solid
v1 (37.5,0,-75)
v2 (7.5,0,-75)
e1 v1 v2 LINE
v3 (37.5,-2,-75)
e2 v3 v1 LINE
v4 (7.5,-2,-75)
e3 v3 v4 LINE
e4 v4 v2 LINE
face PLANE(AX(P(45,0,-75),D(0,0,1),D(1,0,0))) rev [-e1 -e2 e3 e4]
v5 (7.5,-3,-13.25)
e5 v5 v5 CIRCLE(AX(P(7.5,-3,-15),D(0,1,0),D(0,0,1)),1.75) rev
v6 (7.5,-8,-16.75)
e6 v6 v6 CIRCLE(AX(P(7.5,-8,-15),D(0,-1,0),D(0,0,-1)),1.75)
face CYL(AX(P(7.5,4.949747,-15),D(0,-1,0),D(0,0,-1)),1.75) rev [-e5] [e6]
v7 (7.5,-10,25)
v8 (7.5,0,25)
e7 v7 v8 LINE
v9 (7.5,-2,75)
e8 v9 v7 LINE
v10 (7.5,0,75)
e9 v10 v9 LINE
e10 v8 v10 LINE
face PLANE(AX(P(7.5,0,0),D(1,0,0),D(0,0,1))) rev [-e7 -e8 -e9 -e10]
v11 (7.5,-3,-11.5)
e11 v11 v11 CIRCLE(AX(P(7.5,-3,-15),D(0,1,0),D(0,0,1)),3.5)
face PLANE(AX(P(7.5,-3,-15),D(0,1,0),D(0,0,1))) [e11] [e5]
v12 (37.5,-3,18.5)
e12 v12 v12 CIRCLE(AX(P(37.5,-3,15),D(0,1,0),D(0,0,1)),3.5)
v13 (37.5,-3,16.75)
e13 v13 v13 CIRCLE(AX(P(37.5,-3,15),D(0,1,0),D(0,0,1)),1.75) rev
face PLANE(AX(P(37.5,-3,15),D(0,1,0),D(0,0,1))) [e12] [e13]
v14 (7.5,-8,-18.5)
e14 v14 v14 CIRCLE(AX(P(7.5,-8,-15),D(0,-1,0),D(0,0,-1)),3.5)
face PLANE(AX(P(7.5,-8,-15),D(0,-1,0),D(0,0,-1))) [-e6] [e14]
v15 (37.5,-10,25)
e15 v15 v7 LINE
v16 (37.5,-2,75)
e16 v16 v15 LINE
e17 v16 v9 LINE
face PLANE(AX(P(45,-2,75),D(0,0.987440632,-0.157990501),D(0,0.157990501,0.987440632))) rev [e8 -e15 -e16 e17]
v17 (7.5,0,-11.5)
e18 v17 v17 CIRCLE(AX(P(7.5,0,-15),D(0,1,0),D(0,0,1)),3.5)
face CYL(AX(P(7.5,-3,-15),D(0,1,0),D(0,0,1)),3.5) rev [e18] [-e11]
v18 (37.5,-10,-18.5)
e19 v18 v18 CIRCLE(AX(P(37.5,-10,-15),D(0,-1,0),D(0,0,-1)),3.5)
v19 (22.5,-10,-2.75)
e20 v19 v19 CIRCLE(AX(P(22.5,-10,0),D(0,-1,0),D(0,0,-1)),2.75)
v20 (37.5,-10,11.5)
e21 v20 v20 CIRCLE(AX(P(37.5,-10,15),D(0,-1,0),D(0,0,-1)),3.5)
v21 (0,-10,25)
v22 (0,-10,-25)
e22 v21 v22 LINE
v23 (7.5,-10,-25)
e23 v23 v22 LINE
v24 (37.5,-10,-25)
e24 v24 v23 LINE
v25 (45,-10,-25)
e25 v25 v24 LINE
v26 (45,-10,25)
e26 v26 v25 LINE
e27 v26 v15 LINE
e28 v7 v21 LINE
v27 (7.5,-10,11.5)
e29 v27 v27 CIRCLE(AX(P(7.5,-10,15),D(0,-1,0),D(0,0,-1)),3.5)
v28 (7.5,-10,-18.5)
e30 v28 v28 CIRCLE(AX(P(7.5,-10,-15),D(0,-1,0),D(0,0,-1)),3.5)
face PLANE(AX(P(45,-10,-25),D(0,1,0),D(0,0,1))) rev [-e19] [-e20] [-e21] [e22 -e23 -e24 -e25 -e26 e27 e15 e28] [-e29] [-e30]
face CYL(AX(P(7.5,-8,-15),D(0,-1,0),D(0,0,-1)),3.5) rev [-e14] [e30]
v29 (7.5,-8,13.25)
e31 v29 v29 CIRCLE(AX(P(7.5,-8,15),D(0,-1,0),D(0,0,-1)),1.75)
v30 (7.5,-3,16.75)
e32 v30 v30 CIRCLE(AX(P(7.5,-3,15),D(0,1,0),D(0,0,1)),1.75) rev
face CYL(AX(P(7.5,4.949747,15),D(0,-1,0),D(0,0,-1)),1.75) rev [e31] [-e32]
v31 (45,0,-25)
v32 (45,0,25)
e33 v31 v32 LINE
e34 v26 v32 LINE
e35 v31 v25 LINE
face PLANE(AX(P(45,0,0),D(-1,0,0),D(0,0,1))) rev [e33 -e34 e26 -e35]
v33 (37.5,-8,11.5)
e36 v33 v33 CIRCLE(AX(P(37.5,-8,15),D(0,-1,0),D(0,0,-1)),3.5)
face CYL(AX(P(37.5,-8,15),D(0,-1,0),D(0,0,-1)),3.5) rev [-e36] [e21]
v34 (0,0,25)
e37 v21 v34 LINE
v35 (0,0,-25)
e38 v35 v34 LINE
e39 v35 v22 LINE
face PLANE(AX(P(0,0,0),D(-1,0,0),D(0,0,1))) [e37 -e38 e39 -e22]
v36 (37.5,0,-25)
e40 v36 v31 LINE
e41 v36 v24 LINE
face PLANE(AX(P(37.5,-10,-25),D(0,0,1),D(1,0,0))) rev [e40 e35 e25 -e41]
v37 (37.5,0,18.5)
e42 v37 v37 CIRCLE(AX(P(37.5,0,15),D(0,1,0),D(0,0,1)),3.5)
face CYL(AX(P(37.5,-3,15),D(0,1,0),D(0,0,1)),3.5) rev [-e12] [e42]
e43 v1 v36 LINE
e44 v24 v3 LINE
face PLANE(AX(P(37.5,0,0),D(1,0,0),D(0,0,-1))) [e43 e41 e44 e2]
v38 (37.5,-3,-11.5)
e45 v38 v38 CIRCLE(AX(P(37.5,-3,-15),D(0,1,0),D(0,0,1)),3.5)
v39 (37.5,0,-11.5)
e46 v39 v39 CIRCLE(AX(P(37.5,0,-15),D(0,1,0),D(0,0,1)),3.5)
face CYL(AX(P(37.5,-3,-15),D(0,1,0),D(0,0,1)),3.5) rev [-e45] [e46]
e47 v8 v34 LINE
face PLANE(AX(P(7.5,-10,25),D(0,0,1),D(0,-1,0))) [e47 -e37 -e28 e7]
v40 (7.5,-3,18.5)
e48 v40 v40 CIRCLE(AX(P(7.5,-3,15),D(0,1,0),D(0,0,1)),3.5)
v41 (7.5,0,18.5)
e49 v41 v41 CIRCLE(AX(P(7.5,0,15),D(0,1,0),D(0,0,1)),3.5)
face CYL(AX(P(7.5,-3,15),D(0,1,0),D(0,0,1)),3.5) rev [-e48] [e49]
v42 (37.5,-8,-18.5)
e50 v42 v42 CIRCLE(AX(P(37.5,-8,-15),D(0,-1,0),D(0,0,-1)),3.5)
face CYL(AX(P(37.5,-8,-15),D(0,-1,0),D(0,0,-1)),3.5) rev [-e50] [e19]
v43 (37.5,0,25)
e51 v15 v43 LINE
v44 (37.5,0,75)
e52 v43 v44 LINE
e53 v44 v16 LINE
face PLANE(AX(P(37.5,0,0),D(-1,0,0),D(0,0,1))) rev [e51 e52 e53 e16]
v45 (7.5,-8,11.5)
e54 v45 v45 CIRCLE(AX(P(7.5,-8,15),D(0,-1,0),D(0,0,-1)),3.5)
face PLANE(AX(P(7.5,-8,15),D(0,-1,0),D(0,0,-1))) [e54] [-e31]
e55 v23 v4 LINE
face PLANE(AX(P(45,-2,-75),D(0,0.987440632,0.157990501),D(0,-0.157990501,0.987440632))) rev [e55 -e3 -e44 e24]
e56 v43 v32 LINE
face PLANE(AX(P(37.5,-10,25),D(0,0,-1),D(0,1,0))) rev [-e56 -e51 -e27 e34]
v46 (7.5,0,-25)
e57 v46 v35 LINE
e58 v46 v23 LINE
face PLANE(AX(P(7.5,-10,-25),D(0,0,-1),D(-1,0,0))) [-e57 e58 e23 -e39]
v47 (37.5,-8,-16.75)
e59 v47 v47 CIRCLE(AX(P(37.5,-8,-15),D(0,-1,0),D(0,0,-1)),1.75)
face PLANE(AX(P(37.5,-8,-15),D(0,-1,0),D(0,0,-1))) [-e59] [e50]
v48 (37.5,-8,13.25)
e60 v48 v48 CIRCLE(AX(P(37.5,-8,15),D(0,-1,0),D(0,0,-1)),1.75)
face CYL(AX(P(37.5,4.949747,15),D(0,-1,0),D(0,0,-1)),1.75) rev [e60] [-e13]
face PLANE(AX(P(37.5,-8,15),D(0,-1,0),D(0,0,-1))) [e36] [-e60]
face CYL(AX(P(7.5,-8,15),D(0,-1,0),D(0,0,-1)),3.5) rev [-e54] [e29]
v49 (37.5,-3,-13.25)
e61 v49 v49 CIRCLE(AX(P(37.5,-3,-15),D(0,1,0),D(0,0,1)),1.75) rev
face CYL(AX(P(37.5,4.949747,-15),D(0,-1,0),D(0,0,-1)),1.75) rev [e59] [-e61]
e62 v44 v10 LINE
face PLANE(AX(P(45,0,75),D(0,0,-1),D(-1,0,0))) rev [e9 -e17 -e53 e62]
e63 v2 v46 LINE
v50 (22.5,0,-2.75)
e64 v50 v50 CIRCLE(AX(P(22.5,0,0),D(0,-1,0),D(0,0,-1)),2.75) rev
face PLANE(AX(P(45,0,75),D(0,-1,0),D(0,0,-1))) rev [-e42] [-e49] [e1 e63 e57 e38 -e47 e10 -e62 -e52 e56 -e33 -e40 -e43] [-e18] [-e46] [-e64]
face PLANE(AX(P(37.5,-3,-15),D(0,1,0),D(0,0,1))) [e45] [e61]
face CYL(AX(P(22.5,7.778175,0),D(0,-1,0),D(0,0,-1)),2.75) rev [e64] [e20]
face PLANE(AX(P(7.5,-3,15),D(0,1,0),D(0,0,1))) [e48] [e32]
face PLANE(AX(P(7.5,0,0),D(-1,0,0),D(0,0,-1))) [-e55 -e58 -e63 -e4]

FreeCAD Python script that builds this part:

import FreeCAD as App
import Part
import Sketcher
from FreeCAD import Vector

doc = App.newDocument("Part")
body = doc.addObject("PartDesign::Body", "Body")

# Sketch on YZ plane
sketch1 = body.newObject("Sketcher::SketchObject", "Sketch")
sketch1.AttachmentSupport = (doc.getObject("YZ_Plane"), [""])
sketch1.MapMode = "FlatFace"
sketch1.addGeometry([
    Part.LineSegment(Vector(0, -75, 0), Vector(0, 75, 0)),  # 0
    Part.LineSegment(Vector(0, 75, 0), Vector(-2, 75, 0)),  # 1
    Part.LineSegment(Vector(-2, 75, 0), Vector(-10, 25, 0)),  # 2
    Part.LineSegment(Vector(-10, 25, 0), Vector(-10, -25, 0)),  # 3
    Part.LineSegment(Vector(-10, -25, 0), Vector(-2, -75, 0)),  # 4
    Part.LineSegment(Vector(-2, -75, 0), Vector(0, -75, 0)),  # 5
], False)
sketch1.addConstraint([
    Sketcher.Constraint("Coincident", 0, 2, 1, 1),
    Sketcher.Constraint("Coincident", 1, 2, 2, 1),
    Sketcher.Constraint("Coincident", 2, 2, 3, 1),
    Sketcher.Constraint("Coincident", 3, 2, 4, 1),
    Sketcher.Constraint("Coincident", 4, 2, 5, 1),
    Sketcher.Constraint("Coincident", 5, 2, 0, 1),
    Sketcher.Constraint("Vertical", 0),
    Sketcher.Constraint("Horizontal", 1),
    Sketcher.Constraint("Vertical", 3),
    Sketcher.Constraint("Horizontal", 5),
    Sketcher.Constraint("Symmetric", 0, 2, 5, 2, -1, 1),
    Sketcher.Constraint("Vertical", 1, 2, 4, 2),
    Sketcher.Constraint("Equal", 2, 4),
    Sketcher.Constraint("DistanceX", 1, 2, 1, 1, 2.0),
    Sketcher.Constraint("DistanceY", 0, 1, 0, 2, 150.0),
    Sketcher.Constraint("DistanceY", 3, 2, 3, 1, 50.0),
    Sketcher.Constraint("DistanceX", 2, 2, -1, 1, 10.0),
])
pad1 = body.newObject("PartDesign::Pad", "Pad")
pad1.Profile = sketch1
pad1.Length = 45

# Sketch on XZ plane
sketch2 = body.newObject("Sketcher::SketchObject", "Sketch001")
sketch2.AttachmentSupport = (doc.getObject("XZ_Plane"), [""])
sketch2.MapMode = "FlatFace"
sketch2.AttachmentOffset = App.Placement(Vector(0, 0, 10), App.Rotation())
sketch2.addGeometry([
    Part.Circle(Vector(7.5, 15, 0), Vector(0, 0, 1), 3.5),
    Part.Circle(Vector(37.5, 15, 0), Vector(0, 0, 1), 3.5),
    Part.Circle(Vector(37.5, -15, 0), Vector(0, 0, 1), 3.5),
    Part.Circle(Vector(7.5, -15, 0), Vector(0, 0, 1), 3.5),
], False)
sketch2.addConstraint([
    Sketcher.Constraint("Equal", 0, 1),
    Sketcher.Constraint("Equal", 1, 2),
    Sketcher.Constraint("Equal", 2, 3),
    Sketcher.Constraint("Symmetric", 1, 3, 2, 3, -1),
    Sketcher.Constraint("Symmetric", 0, 3, 3, 3, -1),
    Sketcher.Constraint("Horizontal", 0, 3, 1, 3),
    Sketcher.Constraint("Diameter", 0, 7.0),
    Sketcher.Constraint("DistanceY", -1, 1, 0, 3, 15.0),
    Sketcher.Constraint("DistanceX", 0, 3, 1, 3, 30.0),
    Sketcher.Constraint("DistanceX", -1, 1, 0, 3, 7.5),
])
pocket1 = body.newObject("PartDesign::Pocket", "Pocket")
pocket1.Profile = sketch2
pocket1.Length = 2

# Sketch on XZ plane
sketch3 = body.newObject("Sketcher::SketchObject", "Sketch002")
sketch3.AttachmentSupport = (doc.getObject("XZ_Plane"), [""])
sketch3.MapMode = "FlatFace"
sketch3.AttachmentOffset = App.Placement(Vector(0, 0, 8), App.Rotation())
sketch3.addGeometry([
    Part.Circle(Vector(7.5, 15, 0), Vector(0, 0, 1), 1.8),
    Part.Circle(Vector(7.5, -15, 0), Vector(0, 0, 1), 1.8),
    Part.Circle(Vector(37.5, -15, 0), Vector(0, 0, 1), 1.8),
    Part.Circle(Vector(37.5, 15, 0), Vector(0, 0, 1), 1.8),
], False)
sketch3.addConstraint([
    Sketcher.Constraint("Equal", 0, 1),
    Sketcher.Constraint("Equal", 1, 2),
    Sketcher.Constraint("Equal", 2, 3),
    Sketcher.Constraint("Symmetric", 0, 3, 1, 3, -1),
    Sketcher.Constraint("Symmetric", 2, 3, 3, 3, -1),
    Sketcher.Constraint("Horizontal", 1, 3, 2, 3),
    Sketcher.Constraint("Diameter", 0, 3.5),
    Sketcher.Constraint("DistanceY", -1, 1, 0, 3, 15.0),
    Sketcher.Constraint("DistanceX", 1, 3, 2, 3, 30.0),
    Sketcher.Constraint("DistanceX", -1, 1, 0, 3, 7.5),
])
pocket2 = body.newObject("PartDesign::Pocket", "Pocket001")
pocket2.Profile = sketch3
pocket2.Length = 8

# Sketch on XZ plane
sketch4 = body.newObject("Sketcher::SketchObject", "Sketch003")
sketch4.AttachmentSupport = (doc.getObject("XZ_Plane"), [""])
sketch4.MapMode = "FlatFace"
sketch4.AttachmentOffset = App.Placement(Vector(0, 0, 3), App.Rotation())
sketch4.addGeometry([
    Part.Circle(Vector(7.5, -15, 0), Vector(0, 0, 1), 3.5),
    Part.Circle(Vector(37.5, -15, 0), Vector(0, 0, 1), 3.5),
    Part.Circle(Vector(7.5, 15, 0), Vector(0, 0, 1), 3.5),
    Part.Circle(Vector(37.5, 15, 0), Vector(0, 0, 1), 3.5),
], False)
sketch4.addConstraint([
    Sketcher.Constraint("Equal", 0, 1),
    Sketcher.Constraint("Equal", 1, 2),
    Sketcher.Constraint("Equal", 2, 3),
    Sketcher.Constraint("Symmetric", 0, 3, 2, 3, -1),
    Sketcher.Constraint("Symmetric", 1, 3, 3, 3, -1),
    Sketcher.Constraint("Horizontal", 0, 3, 1, 3),
    Sketcher.Constraint("Diameter", 0, 7.0),
    Sketcher.Constraint("DistanceY", 0, 3, -1, 1, 15.0),
    Sketcher.Constraint("DistanceX", 0, 3, 1, 3, 30.0),
    Sketcher.Constraint("DistanceX", -1, 1, 0, 3, 7.5),
])
pocket3 = body.newObject("PartDesign::Pocket", "Pocket002")
pocket3.Profile = sketch4
pocket3.Length = 3

# Sketch on YZ plane
sketch5 = body.newObject("Sketcher::SketchObject", "Sketch004")
sketch5.AttachmentSupport = (doc.getObject("YZ_Plane"), [""])
sketch5.MapMode = "FlatFace"
sketch5.AttachmentOffset = App.Placement(Vector(0, 0, 45), App.Rotation())
sketch5.addGeometry([
    Part.LineSegment(Vector(0, -25, 0), Vector(-10, -25, 0)),  # 0
    Part.LineSegment(Vector(-10, -25, 0), Vector(-2, -75, 0)),  # 1
    Part.LineSegment(Vector(-2, -75, 0), Vector(0, -75, 0)),  # 2
    Part.LineSegment(Vector(0, -75, 0), Vector(0, -25, 0)),  # 3
    Part.LineSegment(Vector(-10, 25, 0), Vector(0, 25, 0)),  # 4
    Part.LineSegment(Vector(0, 25, 0), Vector(0, 75, 0)),  # 5
    Part.LineSegment(Vector(0, 75, 0), Vector(-2, 75, 0)),  # 6
    Part.LineSegment(Vector(-2, 75, 0), Vector(-10, 25, 0)),  # 7
], False)
sketch5.addConstraint([
    Sketcher.Constraint("Coincident", 0, 2, 1, 1),
    Sketcher.Constraint("Coincident", 1, 2, 2, 1),
    Sketcher.Constraint("Coincident", 2, 2, 3, 1),
    Sketcher.Constraint("Coincident", 3, 2, 0, 1),
    Sketcher.Constraint("Coincident", 4, 2, 5, 1),
    Sketcher.Constraint("Coincident", 5, 2, 6, 1),
    Sketcher.Constraint("Coincident", 6, 2, 7, 1),
    Sketcher.Constraint("Coincident", 7, 2, 4, 1),
    Sketcher.Constraint("Horizontal", 0),
    Sketcher.Constraint("Horizontal", 2),
    Sketcher.Constraint("Vertical", 3),
    Sketcher.Constraint("Horizontal", 4),
    Sketcher.Constraint("Vertical", 5),
    Sketcher.Constraint("Horizontal", 6),
    Sketcher.Constraint("Symmetric", 3, 2, 4, 2, -1, 1),
    Sketcher.Constraint("Symmetric", 2, 2, 5, 2, -1),
    Sketcher.Constraint("Vertical", 1, 2, 6, 2),
    Sketcher.Constraint("Vertical", 0, 2, 7, 2),
    Sketcher.Constraint("DistanceX", 0, 2, 0, 1, 10.0),
    Sketcher.Constraint("DistanceX", 2, 1, 2, 2, 2.0),
    Sketcher.Constraint("DistanceY", 3, 1, 3, 2, 50.0),
    Sketcher.Constraint("DistanceY", 0, 2, -1, 1, 25.0),
])
pocket4 = body.newObject("PartDesign::Pocket", "Pocket003")
pocket4.Profile = sketch5
pocket4.Length = 7.5
doc.recompute()

datumplane = body.newObject("PartDesign::Plane", "DatumPlane")
datumplane.AttachmentSupport = (doc.getObject("YZ_Plane"), [""])
datumplane.MapMode = "FlatFace"
datumplane.AttachmentOffset = App.Placement(Vector(0, 0, 22.5), App.Rotation())
mirrored = body.newObject("PartDesign::Mirrored", "Mirrored")
mirrored.Originals = [pocket4]
mirrored.MirrorPlane = (datumplane, [""])
body.Tip = mirrored

# Sketch on XZ plane
sketch6 = body.newObject("Sketcher::SketchObject", "Sketch005")
sketch6.AttachmentSupport = (doc.getObject("XZ_Plane"), [""])
sketch6.MapMode = "FlatFace"
sketch6.AttachmentOffset = App.Placement(Vector(0, 0, 10), App.Rotation())
sketch6.addGeometry(Part.Circle(Vector(22.5, 0, 0), Vector(0, 0, 1), 2.8), False)
sketch6.addConstraint([
    Sketcher.Constraint("PointOnObject", 0, 3, -1),
    Sketcher.Constraint("Diameter", 0, 5.5),
    Sketcher.Constraint("DistanceX", -1, 1, 0, 3, 22.5),
])
pocket5 = body.newObject("PartDesign::Pocket", "Pocket004")
pocket5.Profile = sketch6
pocket5.Length = 10

doc.recompute()
